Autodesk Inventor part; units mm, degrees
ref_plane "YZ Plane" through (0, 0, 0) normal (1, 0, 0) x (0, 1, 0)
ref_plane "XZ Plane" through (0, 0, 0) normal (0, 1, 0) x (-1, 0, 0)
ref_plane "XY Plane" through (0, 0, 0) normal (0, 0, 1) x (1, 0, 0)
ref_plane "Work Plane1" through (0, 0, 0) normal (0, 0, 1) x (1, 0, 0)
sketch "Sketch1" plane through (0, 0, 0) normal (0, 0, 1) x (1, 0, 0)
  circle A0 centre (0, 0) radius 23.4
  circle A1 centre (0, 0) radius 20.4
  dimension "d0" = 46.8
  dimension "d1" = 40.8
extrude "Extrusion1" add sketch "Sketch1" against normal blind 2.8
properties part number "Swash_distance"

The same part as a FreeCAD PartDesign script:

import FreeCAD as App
import Part
import Sketcher
from FreeCAD import Vector
Q = App.Units.Quantity

doc = App.newDocument("Part")
body = doc.addObject("PartDesign::Body", "Body")

# Sketch on XY plane
sketch1 = doc.addObject("Sketcher::SketchObject", "Sketch")
body.addObject(sketch1)
sketch1.AttachmentSupport = (doc.XY_Plane, [""])
sketch1.MapMode = "FlatFace"
sketch1.addGeometry(Part.Circle(Vector(0, 0, 0), Vector(0, 0, 1), 23), False)
sketch1.addGeometry(Part.Circle(Vector(0, 0, 0), Vector(0, 0, 1), 20), False)
sketch1.addConstraint(Sketcher.Constraint("Coincident", 0, 3, -1, 1))
sketch1.addConstraint(Sketcher.Constraint("Coincident", 1, 3, -1, 1))
sketch1.addConstraint(Sketcher.Constraint("Diameter", 0, Q("46.8 mm")))
sketch1.addConstraint(Sketcher.Constraint("Diameter", 1, Q("40.8 mm")))
pad1 = doc.addObject("PartDesign::Pad", "Pad")
body.addObject(pad1)
pad1.Profile = sketch1
pad1.Length = 2.8
pad1.Reversed = True

doc.recompute()
